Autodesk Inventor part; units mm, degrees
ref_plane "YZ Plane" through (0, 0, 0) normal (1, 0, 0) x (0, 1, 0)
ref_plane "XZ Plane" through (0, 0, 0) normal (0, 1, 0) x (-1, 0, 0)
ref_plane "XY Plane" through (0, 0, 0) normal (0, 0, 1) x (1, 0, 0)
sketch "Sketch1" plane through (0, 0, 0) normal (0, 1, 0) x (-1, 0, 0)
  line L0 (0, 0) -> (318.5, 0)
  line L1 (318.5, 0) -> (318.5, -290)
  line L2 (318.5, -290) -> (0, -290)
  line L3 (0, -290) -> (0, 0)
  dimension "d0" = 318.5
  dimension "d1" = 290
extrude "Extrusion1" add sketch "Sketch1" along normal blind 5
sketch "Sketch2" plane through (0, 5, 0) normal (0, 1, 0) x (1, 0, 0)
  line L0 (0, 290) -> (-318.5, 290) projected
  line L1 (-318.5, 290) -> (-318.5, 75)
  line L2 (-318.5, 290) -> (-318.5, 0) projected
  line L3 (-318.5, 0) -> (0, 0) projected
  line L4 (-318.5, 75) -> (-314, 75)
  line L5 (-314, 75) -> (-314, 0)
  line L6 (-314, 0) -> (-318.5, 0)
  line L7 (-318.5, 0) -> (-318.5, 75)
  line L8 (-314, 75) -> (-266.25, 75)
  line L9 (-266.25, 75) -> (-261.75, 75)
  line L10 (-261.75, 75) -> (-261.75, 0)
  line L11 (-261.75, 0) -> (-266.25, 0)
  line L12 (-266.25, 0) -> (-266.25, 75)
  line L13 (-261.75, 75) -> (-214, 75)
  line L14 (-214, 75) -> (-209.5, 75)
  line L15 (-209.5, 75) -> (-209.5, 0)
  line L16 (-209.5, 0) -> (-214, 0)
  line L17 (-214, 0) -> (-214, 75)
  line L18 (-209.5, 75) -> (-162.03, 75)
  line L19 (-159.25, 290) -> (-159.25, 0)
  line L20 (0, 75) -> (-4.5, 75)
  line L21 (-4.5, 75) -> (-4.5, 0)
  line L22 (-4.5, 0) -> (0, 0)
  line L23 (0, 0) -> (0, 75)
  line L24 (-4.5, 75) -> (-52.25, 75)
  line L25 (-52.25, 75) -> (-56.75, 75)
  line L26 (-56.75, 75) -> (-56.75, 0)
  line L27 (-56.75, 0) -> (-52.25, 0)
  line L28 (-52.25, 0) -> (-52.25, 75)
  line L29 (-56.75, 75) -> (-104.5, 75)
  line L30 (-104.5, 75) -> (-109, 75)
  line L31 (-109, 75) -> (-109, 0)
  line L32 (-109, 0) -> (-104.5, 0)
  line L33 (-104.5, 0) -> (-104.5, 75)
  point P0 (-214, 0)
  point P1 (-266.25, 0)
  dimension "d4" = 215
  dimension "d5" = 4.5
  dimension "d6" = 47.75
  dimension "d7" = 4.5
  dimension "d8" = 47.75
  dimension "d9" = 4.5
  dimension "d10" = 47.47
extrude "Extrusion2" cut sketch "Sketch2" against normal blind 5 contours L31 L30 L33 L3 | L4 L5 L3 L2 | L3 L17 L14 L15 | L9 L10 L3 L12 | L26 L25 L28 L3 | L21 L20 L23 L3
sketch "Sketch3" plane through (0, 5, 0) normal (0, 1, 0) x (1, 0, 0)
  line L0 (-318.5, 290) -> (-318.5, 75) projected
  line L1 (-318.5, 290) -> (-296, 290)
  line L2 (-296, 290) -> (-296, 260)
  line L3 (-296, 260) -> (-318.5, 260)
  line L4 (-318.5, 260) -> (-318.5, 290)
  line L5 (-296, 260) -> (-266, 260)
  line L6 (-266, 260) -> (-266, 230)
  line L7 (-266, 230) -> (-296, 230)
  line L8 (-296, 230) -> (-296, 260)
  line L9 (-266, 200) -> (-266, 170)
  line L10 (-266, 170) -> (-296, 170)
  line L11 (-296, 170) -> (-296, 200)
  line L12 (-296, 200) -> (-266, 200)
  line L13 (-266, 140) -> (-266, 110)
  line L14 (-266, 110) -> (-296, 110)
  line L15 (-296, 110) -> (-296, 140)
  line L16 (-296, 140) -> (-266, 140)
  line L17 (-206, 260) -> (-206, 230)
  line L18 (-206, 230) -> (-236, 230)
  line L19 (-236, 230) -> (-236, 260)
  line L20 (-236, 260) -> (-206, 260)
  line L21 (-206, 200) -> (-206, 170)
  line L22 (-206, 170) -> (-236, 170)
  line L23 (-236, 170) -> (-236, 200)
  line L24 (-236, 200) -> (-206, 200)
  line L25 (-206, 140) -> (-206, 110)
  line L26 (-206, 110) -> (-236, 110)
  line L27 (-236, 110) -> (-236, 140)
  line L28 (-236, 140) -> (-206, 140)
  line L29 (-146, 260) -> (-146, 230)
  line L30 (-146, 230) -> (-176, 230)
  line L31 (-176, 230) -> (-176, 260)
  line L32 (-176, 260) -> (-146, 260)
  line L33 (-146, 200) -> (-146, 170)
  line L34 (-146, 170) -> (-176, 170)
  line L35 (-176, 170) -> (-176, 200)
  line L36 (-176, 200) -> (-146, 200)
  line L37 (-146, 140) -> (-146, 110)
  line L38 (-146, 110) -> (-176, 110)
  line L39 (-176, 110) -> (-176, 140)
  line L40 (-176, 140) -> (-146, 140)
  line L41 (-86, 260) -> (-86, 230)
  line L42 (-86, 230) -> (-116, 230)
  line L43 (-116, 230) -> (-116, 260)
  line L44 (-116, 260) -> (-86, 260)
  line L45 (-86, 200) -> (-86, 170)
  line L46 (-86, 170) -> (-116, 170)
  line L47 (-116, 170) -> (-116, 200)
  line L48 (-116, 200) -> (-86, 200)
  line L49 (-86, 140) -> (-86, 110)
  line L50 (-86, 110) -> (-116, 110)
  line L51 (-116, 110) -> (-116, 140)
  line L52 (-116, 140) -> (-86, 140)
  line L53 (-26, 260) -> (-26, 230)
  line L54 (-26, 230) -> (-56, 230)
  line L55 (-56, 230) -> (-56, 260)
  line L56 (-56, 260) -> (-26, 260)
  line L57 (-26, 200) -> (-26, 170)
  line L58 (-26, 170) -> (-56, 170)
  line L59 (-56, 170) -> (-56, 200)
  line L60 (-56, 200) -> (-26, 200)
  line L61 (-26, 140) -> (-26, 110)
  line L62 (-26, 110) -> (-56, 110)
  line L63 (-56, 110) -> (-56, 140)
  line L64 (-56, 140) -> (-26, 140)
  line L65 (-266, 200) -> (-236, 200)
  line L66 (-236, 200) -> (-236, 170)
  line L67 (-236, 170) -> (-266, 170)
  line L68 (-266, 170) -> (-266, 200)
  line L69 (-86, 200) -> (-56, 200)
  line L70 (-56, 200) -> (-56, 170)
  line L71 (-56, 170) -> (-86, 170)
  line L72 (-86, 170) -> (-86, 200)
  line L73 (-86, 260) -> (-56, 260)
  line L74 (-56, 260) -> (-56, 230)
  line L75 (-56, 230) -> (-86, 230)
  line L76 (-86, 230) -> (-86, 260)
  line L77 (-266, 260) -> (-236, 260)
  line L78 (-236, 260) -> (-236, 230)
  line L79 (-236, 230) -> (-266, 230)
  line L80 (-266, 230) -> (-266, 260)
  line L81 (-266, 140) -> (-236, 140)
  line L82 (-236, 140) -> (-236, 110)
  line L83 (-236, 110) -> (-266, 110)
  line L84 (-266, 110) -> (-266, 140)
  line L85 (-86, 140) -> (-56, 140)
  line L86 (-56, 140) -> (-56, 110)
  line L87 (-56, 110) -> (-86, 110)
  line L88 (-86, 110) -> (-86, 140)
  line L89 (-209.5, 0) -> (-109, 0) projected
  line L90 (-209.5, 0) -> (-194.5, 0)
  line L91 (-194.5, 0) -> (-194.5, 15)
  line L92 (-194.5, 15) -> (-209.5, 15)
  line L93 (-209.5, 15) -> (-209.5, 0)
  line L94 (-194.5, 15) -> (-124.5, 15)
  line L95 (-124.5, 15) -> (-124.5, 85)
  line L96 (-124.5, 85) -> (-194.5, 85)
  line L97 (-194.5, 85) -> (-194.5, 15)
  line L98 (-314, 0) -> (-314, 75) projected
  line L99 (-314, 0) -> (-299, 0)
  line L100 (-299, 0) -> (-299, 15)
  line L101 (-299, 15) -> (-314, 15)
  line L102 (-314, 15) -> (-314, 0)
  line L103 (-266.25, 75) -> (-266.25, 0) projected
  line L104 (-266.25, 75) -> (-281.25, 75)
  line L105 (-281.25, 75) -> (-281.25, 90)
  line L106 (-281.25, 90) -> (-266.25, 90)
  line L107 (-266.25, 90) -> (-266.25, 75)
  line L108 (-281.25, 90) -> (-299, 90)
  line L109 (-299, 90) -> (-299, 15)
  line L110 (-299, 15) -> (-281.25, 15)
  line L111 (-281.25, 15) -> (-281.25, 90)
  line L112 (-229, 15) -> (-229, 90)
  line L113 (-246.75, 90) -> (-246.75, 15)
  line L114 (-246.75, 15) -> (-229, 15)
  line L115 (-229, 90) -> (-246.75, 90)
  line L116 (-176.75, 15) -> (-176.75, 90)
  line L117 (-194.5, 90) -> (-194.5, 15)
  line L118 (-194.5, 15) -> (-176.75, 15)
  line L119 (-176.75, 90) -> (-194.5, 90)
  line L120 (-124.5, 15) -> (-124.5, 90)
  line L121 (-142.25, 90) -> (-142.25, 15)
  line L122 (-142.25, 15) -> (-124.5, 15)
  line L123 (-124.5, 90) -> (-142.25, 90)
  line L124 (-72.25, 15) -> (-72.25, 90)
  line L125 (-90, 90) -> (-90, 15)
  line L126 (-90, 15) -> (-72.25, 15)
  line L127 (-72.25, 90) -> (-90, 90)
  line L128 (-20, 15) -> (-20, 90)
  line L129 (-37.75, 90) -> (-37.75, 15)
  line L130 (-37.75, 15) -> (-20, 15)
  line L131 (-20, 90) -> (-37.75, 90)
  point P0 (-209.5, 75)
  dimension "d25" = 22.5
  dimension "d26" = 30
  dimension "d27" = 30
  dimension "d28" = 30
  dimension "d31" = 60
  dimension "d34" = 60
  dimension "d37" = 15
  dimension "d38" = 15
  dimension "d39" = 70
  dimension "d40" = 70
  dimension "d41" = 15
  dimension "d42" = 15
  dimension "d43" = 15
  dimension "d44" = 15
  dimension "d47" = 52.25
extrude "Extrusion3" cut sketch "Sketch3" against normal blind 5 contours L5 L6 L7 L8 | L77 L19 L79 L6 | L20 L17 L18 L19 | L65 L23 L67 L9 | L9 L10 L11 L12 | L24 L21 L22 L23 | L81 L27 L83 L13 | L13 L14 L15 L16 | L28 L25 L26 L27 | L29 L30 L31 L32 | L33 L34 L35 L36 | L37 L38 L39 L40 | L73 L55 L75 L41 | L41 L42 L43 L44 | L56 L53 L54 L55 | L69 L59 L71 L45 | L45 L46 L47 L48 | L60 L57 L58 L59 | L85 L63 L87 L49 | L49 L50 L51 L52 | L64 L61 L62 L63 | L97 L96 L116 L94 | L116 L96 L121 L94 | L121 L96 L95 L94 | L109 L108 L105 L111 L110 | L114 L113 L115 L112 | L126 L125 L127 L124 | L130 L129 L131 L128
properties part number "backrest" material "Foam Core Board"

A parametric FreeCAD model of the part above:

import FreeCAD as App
import Part
import Sketcher
Q = App.Units.Quantity


def add_polygon(sketch, points):
    """Adds a closed chain of lines whose ends are joined by coincident constraints."""
    first, n = sketch.GeometryCount, len(points)
    for a, b in zip(points, points[1:] + points[:1]):
        sketch.addGeometry(Part.LineSegment(App.Vector(*a, 0), App.Vector(*b, 0)), False)
    for i in range(n):
        sketch.addConstraint(Sketcher.Constraint("Coincident", first + i, 2, first + (i + 1) % n, 1))

doc = App.newDocument("Part")
body = doc.addObject("PartDesign::Body", "Body")

# Sketch on XZ plane
sketch1 = body.newObject("Sketcher::SketchObject", "Sketch")
sketch1.AttachmentSupport = (doc.getObject("XZ_Plane"), [""])
sketch1.MapMode = "FlatFace"
add_polygon(sketch1, [(-318, 0), (0, 0), (0, -290), (-318, -290)])  # lines 0-3
sketch1.addConstraint([
    Sketcher.Constraint("Horizontal", 0),
    Sketcher.Constraint("Vertical", 1),
    Sketcher.Constraint("Horizontal", 2),
    Sketcher.Constraint("Vertical", 3),
    Sketcher.Constraint("Coincident", 0, 2, -1, 1),
    Sketcher.Constraint("DistanceY", 1, 2, 1, 1, Q("290 mm")),
    Sketcher.Constraint("DistanceX", 0, 1, 0, 2, Q("318.5 mm")),
])
pad1 = body.newObject("PartDesign::Pad", "Pad")
pad1.Profile = sketch1
pad1.Length = 5
pad1.Reversed = True

# Sketch on XZ plane
sketch2 = body.newObject("Sketcher::SketchObject", "Sketch001")
sketch2.AttachmentSupport = (doc.getObject("XZ_Plane"), [""])
sketch2.MapMode = "FlatFace"
sketch2.AttachmentOffset = App.Placement(App.Vector(0, 0, -5), App.Rotation())
add_polygon(sketch2, [(-109, -75), (-109, 0), (-104.5, 0), (-104.5, -75)])  # lines 0-3
add_polygon(sketch2, [(-314, -75), (-318.5, -75), (-318.5, 0), (-314, 0)])  # lines 4-7
add_polygon(sketch2, [(-214, 0), (-209.5, 0), (-209.5, -75), (-214, -75)])  # lines 8-11
add_polygon(sketch2, [(-261.8, -75), (-266.2, -75), (-266.2, 0), (-261.8, 0)])  # lines 12-15
add_polygon(sketch2, [(-56.8, -75), (-56.8, 0), (-52.2, 0), (-52.2, -75)])  # lines 16-19
add_polygon(sketch2, [(-4.5, -75), (-4.5, 0), (0, 0), (0, -75)])  # lines 20-23
sketch2.addConstraint([
    Sketcher.Constraint("Vertical", 0),
    Sketcher.Constraint("Horizontal", 1),
    Sketcher.Constraint("Vertical", 2),
    Sketcher.Constraint("Horizontal", 3),
    Sketcher.Constraint("Horizontal", 4),
    Sketcher.Constraint("Vertical", 5),
    Sketcher.Constraint("Horizontal", 6),
    Sketcher.Constraint("Vertical", 7),
    Sketcher.Constraint("Horizontal", 8),
    Sketcher.Constraint("Vertical", 9),
    Sketcher.Constraint("Horizontal", 10),
    Sketcher.Constraint("Vertical", 11),
    Sketcher.Constraint("Horizontal", 12),
    Sketcher.Constraint("Vertical", 13),
    Sketcher.Constraint("Horizontal", 14),
    Sketcher.Constraint("Vertical", 15),
    Sketcher.Constraint("Vertical", 16),
    Sketcher.Constraint("Horizontal", 17),
    Sketcher.Constraint("Vertical", 18),
    Sketcher.Constraint("Horizontal", 19),
    Sketcher.Constraint("Vertical", 20),
    Sketcher.Constraint("Horizontal", 21),
    Sketcher.Constraint("Vertical", 22),
    Sketcher.Constraint("Horizontal", 23),
    Sketcher.Constraint("Coincident", 21, 2, -1, 1),
    Sketcher.Constraint("PointOnObject", 0, 2, -1),
    Sketcher.Constraint("PointOnObject", 5, 2, -1),
    Sketcher.Constraint("PointOnObject", 8, 2, -1),
    Sketcher.Constraint("PointOnObject", 13, 2, -1),
    Sketcher.Constraint("PointOnObject", 16, 2, -1),
    Sketcher.Constraint("Horizontal", 3, 2, 4, 2),
    Sketcher.Constraint("Horizontal", 7, 2, 9, 2),
    Sketcher.Constraint("Horizontal", 10, 2, 12, 2),
    Sketcher.Constraint("Horizontal", 15, 2, 18, 2),
    Sketcher.Constraint("Horizontal", 19, 2, 22, 2),
    Sketcher.Constraint("Equal", 3, 4),
    Sketcher.Constraint("Equal", 6, 8),
    Sketcher.Constraint("Equal", 10, 12),
    Sketcher.Constraint("Equal", 14, 17),
    Sketcher.Constraint("Equal", 19, 21),
    Sketcher.Constraint("DistanceX", 1, 1, 1, 2, Q("4.5 mm")),
    Sketcher.Constraint("DistanceY", 0, 1, 0, 2, Q("75 mm")),
    Sketcher.Constraint("DistanceX", 7, 2, 12, 2, Q("47.75 mm")),
    Sketcher.Constraint("DistanceX", 14, 2, 11, 2, Q("47.75 mm")),
    Sketcher.Constraint("DistanceX", 1, 2, 16, 2, Q("47.75 mm")),
    Sketcher.Constraint("DistanceX", 17, 2, 20, 2, Q("47.75 mm")),
    Sketcher.Constraint("DistanceX", 6, 2, -1, 1, Q("314 mm")),
])
pocket1 = body.newObject("PartDesign::Pocket", "Pocket")
pocket1.Profile = sketch2
pocket1.Length = 5
pocket1.Reversed = True

# Sketch on XZ plane
sketch3 = body.newObject("Sketcher::SketchObject", "Sketch002")
sketch3.AttachmentSupport = (doc.getObject("XZ_Plane"), [""])
sketch3.MapMode = "FlatFace"
sketch3.AttachmentOffset = App.Placement(App.Vector(0, 0, -5), App.Rotation())
add_polygon(sketch3, [(-296, -260), (-296, -230), (-206, -230), (-206, -260)])  # lines 0-3
add_polygon(sketch3, [(-296, -200), (-296, -170), (-206, -170), (-206, -200)])  # lines 4-7
add_polygon(sketch3, [(-296, -140), (-296, -110), (-206, -110), (-206, -140)])  # lines 8-11
add_polygon(sketch3, [(-146, -230), (-146, -260), (-176, -260), (-176, -230)])  # lines 12-15
add_polygon(sketch3, [(-146, -170), (-146, -200), (-176, -200), (-176, -170)])  # lines 16-19
add_polygon(sketch3, [(-146, -110), (-146, -140), (-176, -140), (-176, -110)])  # lines 20-23
add_polygon(sketch3, [(-116, -260), (-116, -230), (-26, -230), (-26, -260)])  # lines 24-27
add_polygon(sketch3, [(-116, -200), (-116, -170), (-26, -170), (-26, -200)])  # lines 28-31
add_polygon(sketch3, [(-116, -140), (-116, -110), (-26, -110), (-26, -140)])  # lines 32-35
add_polygon(sketch3, [(-194, -85), (-194, -15), (-124, -15), (-124, -85)])  # lines 36-39
add_polygon(sketch3, [(-299, -90), (-299, -15), (-281, -15), (-281, -90)])  # lines 40-43
add_polygon(sketch3, [(-247, -15), (-229, -15), (-229, -90), (-247, -90)])  # lines 44-47
add_polygon(sketch3, [(-90, -15), (-72, -15), (-72, -90), (-90, -90)])  # lines 48-51
add_polygon(sketch3, [(-38, -15), (-20, -15), (-20, -90), (-38, -90)])  # lines 52-55
sketch3.addConstraint([
    Sketcher.Constraint("Vertical", 0),
    Sketcher.Constraint("Horizontal", 1),
    Sketcher.Constraint("Vertical", 2),
    Sketcher.Constraint("Horizontal", 3),
    Sketcher.Constraint("Vertical", 4),
    Sketcher.Constraint("Horizontal", 5),
    Sketcher.Constraint("Vertical", 6),
    Sketcher.Constraint("Horizontal", 7),
    Sketcher.Constraint("Vertical", 8),
    Sketcher.Constraint("Horizontal", 9),
    Sketcher.Constraint("Vertical", 10),
    Sketcher.Constraint("Horizontal", 11),
    Sketcher.Constraint("Vertical", 12),
    Sketcher.Constraint("Horizontal", 13),
    Sketcher.Constraint("Vertical", 14),
    Sketcher.Constraint("Horizontal", 15),
    Sketcher.Constraint("Vertical", 16),
    Sketcher.Constraint("Horizontal", 17),
    Sketcher.Constraint("Vertical", 18),
    Sketcher.Constraint("Horizontal", 19),
    Sketcher.Constraint("Vertical", 20),
    Sketcher.Constraint("Horizontal", 21),
    Sketcher.Constraint("Vertical", 22),
    Sketcher.Constraint("Horizontal", 23),
    Sketcher.Constraint("Vertical", 24),
    Sketcher.Constraint("Horizontal", 25),
    Sketcher.Constraint("Vertical", 26),
    Sketcher.Constraint("Horizontal", 27),
    Sketcher.Constraint("Vertical", 28),
    Sketcher.Constraint("Horizontal", 29),
    Sketcher.Constraint("Vertical", 30),
    Sketcher.Constraint("Horizontal", 31),
    Sketcher.Constraint("Vertical", 32),
    Sketcher.Constraint("Horizontal", 33),
    Sketcher.Constraint("Vertical", 34),
    Sketcher.Constraint("Horizontal", 35),
    Sketcher.Constraint("Vertical", 36),
    Sketcher.Constraint("Horizontal", 37),
    Sketcher.Constraint("Vertical", 38),
    Sketcher.Constraint("Horizontal", 39),
    Sketcher.Constraint("Vertical", 40),
    Sketcher.Constraint("Horizontal", 41),
    Sketcher.Constraint("Vertical", 42),
    Sketcher.Constraint("Horizontal", 43),
    Sketcher.Constraint("Horizontal", 44),
    Sketcher.Constraint("Vertical", 45),
    Sketcher.Constraint("Horizontal", 46),
    Sketcher.Constraint("Vertical", 47),
    Sketcher.Constraint("Horizontal", 48),
    Sketcher.Constraint("Vertical", 49),
    Sketcher.Constraint("Horizontal", 50),
    Sketcher.Constraint("Vertical", 51),
    Sketcher.Constraint("Horizontal", 52),
    Sketcher.Constraint("Vertical", 53),
    Sketcher.Constraint("Horizontal", 54),
    Sketcher.Constraint("Vertical", 55),
    Sketcher.Constraint("Horizontal", 3, 2, 12, 2),
    Sketcher.Constraint("Horizontal", 1, 2, 14, 2),
    Sketcher.Constraint("Horizontal", 7, 2, 16, 2),
    Sketcher.Constraint("Horizontal", 5, 2, 18, 2),
    Sketcher.Constraint("Horizontal", 11, 2, 20, 2),
    Sketcher.Constraint("Horizontal", 9, 2, 22, 2),
    Sketcher.Constraint("Horizontal", 15, 2, 24, 2),
    Sketcher.Constraint("Horizontal", 13, 2, 26, 2),
    Sketcher.Constraint("Horizontal", 19, 2, 28, 2),
    Sketcher.Constraint("Horizontal", 17, 2, 30, 2),
    Sketcher.Constraint("Horizontal", 23, 2, 32, 2),
    Sketcher.Constraint("Horizontal", 21, 2, 34, 2),
    Sketcher.Constraint("Horizontal", 37, 2, 40, 2),
    Sketcher.Constraint("Horizontal", 41, 2, 44, 2),
    Sketcher.Constraint("Horizontal", 43, 2, 45, 2),
    Sketcher.Constraint("Horizontal", 47, 2, 48, 2),
    Sketcher.Constraint("Horizontal", 46, 2, 49, 2),
    Sketcher.Constraint("Horizontal", 51, 2, 52, 2),
    Sketcher.Constraint("Horizontal", 50, 2, 53, 2),
    Sketcher.Constraint("Vertical", 3, 2, 4, 2),
    Sketcher.Constraint("Vertical", 2, 2, 5, 2),
    Sketcher.Constraint("Vertical", 7, 2, 8, 2),
    Sketcher.Constraint("Vertical", 6, 2, 9, 2),
    Sketcher.Constraint("Vertical", 15, 2, 16, 2),
    Sketcher.Constraint("Vertical", 14, 2, 17, 2),
    Sketcher.Constraint("Vertical", 19, 2, 20, 2),
    Sketcher.Constraint("Vertical", 18, 2, 21, 2),
    Sketcher.Constraint("Vertical", 27, 2, 28, 2),
    Sketcher.Constraint("Vertical", 26, 2, 29, 2),
    Sketcher.Constraint("Vertical", 31, 2, 32, 2),
    Sketcher.Constraint("Vertical", 30, 2, 33, 2),
    Sketcher.Constraint("Equal", 11, 25),
    Sketcher.Constraint("Equal", 43, 44),
    Sketcher.Constraint("Equal", 46, 48),
    Sketcher.Constraint("Equal", 50, 52),
    Sketcher.Constraint("Equal", 23, 0),
    Sketcher.Constraint("Equal", 2, 4),
    Sketcher.Constraint("Equal", 6, 8),
    Sketcher.Constraint("Equal", 39, 36),
    Sketcher.Constraint("DistanceX", 13, 2, 13, 1, Q("30 mm")),
    Sketcher.Constraint("DistanceX", 37, 1, 37, 2, Q("70 mm")),
    Sketcher.Constraint("DistanceY", 36, 2, -1, 1, Q("15 mm")),
    Sketcher.Constraint("DistanceY", 0, 2, 4, 2, Q("60 mm")),
    Sketcher.Constraint("DistanceY", 4, 2, 8, 2, Q("60 mm")),
    Sketcher.Constraint("DistanceX", 2, 2, 12, 2, Q("60 mm")),
    Sketcher.Constraint("DistanceX", 15, 2, 24, 2, Q("30 mm")),
    Sketcher.Constraint("DistanceX", 40, 2, 44, 2, Q("70 mm")),
    Sketcher.Constraint("DistanceX", 51, 2, 52, 2, Q("70 mm")),
    Sketcher.Constraint("DistanceX", 1, 1, 1, 2, Q("90 mm")),
    Sketcher.Constraint("DistanceY", 40, 1, 40, 2, Q("75 mm")),
    Sketcher.Constraint("DistanceX", 41, 2, 44, 2, Q("52.25 mm")),
    Sketcher.Constraint("DistanceX", 46, 2, 39, 2, Q("52.25 mm")),
    Sketcher.Constraint("DistanceX", 37, 2, 48, 2, Q("52.25 mm")),
    Sketcher.Constraint("DistanceX", 0, 2, -1, 1, Q("296 mm")),
    Sketcher.Constraint("DistanceY", 0, 2, -1, 1, Q("230 mm")),
    Sketcher.Constraint("DistanceX", 40, 2, -1, 1, Q("299 mm")),
])
pocket2 = body.newObject("PartDesign::Pocket", "Pocket001")
pocket2.Profile = sketch3
pocket2.Length = 5
pocket2.Reversed = True

doc.recompute()
